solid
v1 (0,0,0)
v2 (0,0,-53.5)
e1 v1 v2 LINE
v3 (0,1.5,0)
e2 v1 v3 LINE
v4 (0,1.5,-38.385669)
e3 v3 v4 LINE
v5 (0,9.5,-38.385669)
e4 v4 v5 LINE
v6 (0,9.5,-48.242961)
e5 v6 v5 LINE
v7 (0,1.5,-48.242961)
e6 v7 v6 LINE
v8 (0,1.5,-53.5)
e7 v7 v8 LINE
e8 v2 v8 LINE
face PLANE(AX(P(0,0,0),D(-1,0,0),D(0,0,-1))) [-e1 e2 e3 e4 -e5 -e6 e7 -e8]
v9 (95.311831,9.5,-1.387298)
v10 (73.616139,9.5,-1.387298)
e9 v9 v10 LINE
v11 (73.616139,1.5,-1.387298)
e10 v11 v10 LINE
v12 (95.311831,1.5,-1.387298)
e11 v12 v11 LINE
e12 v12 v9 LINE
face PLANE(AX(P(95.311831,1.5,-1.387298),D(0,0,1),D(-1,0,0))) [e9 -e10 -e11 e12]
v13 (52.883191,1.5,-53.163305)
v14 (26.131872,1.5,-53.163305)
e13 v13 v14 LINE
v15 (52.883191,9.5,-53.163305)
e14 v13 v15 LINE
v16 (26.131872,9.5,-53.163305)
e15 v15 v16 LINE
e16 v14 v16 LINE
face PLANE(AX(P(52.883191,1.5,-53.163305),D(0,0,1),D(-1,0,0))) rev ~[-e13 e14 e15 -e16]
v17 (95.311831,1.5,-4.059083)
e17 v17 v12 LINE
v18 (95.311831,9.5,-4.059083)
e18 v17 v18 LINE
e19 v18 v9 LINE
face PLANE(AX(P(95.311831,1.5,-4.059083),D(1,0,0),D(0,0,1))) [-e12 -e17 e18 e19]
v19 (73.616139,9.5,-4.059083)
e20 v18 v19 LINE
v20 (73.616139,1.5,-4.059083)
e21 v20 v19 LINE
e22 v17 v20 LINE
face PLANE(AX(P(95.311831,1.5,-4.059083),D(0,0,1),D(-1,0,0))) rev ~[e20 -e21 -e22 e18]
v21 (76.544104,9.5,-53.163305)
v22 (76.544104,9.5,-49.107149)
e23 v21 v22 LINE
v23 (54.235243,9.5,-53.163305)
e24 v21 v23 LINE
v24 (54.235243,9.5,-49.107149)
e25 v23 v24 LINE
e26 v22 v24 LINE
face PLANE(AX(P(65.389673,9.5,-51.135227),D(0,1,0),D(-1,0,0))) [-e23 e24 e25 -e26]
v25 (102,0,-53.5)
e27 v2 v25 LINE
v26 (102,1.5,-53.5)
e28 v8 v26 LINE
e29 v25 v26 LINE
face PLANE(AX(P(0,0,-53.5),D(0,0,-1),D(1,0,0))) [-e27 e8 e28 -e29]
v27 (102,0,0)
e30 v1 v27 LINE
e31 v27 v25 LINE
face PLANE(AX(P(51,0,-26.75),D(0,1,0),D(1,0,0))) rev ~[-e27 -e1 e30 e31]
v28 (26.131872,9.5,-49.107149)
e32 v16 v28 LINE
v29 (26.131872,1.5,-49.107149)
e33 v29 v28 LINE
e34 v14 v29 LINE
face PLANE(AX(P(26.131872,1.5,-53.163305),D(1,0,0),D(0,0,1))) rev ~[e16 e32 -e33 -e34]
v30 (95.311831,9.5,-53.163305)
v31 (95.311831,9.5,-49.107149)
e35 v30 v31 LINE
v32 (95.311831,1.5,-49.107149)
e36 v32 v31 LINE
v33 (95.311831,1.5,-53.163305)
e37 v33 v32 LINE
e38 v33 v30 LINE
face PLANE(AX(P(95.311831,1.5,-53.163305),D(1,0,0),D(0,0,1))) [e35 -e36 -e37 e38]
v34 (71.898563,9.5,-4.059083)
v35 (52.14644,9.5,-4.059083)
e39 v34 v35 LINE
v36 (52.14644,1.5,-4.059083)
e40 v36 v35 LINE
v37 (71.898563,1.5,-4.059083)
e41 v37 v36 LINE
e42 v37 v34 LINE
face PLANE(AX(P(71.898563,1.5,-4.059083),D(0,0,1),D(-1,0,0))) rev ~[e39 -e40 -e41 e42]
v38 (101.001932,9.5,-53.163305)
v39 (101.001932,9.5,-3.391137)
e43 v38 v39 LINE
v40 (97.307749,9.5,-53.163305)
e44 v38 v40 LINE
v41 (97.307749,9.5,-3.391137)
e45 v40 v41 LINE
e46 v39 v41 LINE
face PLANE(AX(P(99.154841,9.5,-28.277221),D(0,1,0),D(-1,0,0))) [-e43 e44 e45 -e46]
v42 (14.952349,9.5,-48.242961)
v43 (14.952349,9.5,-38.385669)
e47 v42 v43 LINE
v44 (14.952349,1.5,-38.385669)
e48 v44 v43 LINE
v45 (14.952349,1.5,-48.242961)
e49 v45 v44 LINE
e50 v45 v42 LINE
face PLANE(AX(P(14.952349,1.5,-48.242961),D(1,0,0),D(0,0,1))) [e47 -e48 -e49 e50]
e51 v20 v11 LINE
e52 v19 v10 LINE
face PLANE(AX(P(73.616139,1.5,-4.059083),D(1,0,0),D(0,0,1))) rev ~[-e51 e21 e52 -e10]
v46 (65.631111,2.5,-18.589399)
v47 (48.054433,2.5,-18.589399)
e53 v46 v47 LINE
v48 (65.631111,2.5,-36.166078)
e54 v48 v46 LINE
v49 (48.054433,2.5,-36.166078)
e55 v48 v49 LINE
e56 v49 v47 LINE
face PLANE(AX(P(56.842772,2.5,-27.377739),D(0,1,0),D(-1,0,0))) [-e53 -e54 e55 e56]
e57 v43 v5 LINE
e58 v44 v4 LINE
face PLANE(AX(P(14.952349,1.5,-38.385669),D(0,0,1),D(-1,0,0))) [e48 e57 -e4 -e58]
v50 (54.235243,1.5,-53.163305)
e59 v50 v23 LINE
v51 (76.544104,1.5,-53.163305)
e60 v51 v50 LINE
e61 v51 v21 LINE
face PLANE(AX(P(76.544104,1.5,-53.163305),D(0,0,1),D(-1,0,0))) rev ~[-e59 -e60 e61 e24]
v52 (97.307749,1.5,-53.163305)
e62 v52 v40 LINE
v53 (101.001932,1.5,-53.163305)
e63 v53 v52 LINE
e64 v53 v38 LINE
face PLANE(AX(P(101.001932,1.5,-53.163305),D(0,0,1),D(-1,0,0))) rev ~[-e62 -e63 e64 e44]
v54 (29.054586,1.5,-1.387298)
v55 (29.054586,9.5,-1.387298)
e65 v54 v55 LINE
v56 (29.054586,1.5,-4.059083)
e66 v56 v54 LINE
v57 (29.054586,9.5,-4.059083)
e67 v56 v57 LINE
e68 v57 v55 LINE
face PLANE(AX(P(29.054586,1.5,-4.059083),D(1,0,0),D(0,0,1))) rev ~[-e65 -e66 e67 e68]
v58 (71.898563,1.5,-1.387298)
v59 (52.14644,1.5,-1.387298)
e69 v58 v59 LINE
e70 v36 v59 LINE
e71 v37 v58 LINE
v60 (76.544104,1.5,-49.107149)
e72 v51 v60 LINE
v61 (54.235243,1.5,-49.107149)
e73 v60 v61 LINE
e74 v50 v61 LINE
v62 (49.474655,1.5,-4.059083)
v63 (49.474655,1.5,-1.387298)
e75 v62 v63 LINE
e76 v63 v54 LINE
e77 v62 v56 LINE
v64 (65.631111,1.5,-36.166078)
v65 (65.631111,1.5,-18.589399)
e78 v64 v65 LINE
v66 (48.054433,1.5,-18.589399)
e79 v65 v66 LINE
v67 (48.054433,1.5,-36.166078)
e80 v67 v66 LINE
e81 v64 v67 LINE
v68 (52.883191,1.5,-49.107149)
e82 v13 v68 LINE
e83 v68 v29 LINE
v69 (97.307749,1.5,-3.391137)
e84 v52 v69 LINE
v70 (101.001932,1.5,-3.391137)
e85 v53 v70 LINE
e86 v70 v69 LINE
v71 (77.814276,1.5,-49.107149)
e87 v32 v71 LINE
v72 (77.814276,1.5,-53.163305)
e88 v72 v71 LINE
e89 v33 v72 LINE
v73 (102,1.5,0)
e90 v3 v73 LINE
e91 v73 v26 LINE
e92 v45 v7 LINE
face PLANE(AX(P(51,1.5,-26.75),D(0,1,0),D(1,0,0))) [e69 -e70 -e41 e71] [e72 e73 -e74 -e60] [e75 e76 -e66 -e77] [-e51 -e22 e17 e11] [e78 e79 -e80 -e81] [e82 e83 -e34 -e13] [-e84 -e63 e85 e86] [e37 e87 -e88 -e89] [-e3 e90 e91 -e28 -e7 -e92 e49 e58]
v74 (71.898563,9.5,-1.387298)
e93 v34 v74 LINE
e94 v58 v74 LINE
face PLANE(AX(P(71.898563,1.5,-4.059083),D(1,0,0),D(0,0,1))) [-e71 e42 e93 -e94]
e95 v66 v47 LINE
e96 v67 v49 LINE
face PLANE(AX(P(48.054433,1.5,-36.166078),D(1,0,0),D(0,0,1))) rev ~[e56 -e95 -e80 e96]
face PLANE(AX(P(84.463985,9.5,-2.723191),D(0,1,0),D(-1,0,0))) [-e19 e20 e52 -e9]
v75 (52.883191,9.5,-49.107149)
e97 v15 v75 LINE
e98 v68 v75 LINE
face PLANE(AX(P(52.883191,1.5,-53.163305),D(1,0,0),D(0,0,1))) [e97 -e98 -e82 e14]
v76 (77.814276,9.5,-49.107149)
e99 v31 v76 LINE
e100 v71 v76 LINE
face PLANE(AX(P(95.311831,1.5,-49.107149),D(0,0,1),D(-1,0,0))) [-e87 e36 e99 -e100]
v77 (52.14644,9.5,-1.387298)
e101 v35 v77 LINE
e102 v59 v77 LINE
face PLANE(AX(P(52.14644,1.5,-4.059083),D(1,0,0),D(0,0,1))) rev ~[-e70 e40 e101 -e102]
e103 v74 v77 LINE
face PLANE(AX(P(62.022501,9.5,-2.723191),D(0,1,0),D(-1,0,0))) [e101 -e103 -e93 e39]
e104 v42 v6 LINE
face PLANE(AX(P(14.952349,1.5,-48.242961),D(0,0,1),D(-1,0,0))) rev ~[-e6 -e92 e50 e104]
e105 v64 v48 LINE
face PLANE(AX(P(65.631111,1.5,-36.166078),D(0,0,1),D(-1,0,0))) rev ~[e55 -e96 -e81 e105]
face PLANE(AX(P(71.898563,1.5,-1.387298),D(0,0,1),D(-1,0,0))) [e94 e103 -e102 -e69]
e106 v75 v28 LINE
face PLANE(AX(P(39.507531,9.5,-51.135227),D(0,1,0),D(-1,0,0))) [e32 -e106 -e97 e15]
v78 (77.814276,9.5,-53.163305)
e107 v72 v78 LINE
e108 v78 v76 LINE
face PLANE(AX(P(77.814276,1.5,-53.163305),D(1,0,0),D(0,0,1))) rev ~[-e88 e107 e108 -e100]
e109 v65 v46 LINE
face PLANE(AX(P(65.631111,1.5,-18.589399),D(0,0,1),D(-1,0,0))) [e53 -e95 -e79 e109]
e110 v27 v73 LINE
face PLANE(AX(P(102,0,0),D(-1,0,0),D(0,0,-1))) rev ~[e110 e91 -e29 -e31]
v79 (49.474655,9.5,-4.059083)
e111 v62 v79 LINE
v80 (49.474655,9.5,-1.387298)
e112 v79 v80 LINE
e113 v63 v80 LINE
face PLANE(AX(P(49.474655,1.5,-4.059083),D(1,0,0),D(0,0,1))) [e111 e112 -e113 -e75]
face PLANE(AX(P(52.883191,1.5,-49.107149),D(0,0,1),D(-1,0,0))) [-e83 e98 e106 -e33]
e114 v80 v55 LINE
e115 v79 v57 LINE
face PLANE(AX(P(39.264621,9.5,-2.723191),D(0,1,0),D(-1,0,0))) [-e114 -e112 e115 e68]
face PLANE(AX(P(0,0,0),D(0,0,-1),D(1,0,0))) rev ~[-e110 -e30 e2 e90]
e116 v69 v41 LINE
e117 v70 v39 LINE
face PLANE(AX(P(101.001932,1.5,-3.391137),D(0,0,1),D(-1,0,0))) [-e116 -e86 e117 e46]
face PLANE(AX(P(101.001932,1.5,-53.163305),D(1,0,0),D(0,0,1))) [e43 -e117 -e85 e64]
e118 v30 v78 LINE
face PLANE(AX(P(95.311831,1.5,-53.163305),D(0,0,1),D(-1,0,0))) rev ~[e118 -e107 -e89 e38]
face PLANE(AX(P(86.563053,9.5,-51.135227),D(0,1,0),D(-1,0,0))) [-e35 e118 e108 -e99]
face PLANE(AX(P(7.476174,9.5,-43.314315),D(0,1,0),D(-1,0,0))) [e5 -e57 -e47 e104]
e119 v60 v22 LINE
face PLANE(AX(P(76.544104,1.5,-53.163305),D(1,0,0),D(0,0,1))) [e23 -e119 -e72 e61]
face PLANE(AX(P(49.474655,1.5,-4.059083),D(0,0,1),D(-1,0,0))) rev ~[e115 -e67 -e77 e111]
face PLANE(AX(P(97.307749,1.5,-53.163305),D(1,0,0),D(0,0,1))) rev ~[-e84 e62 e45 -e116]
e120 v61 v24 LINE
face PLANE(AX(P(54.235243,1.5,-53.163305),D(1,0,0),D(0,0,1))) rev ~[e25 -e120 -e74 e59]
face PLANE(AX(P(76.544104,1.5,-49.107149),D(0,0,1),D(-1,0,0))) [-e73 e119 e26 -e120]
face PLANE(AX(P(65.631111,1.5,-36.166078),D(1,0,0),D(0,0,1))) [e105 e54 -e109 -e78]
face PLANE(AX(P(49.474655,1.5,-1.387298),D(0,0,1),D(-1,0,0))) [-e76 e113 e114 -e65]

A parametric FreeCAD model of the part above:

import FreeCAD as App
import Part
import Sketcher
Q = App.Units.Quantity

doc = App.newDocument("Part")
params = doc.addObject("Spreadsheet::Sheet", "Params")
for row, (alias, value) in enumerate([
    ("sketch1_width", "102 mm"),
    ("sketch1_height", "53.5 mm"),
    ("pad1_length", "1.5 mm"),
    ("pad2_length", "8 mm"),
    ("pad3_length", "8 mm"),
    ("pad4_length", "1 mm"),
], start=1):
    params.set(f"A{row}", alias)
    params.set(f"B{row}", "=" + value)
    params.setAlias(f"B{row}", alias)

body = doc.addObject("PartDesign::Body", "Body")

# Sketch on XZ plane
sketch1 = body.newObject("Sketcher::SketchObject", "Sketch")
sketch1.AttachmentSupport = (doc.getObject("XZ_Plane"), [""])
sketch1.MapMode = "FlatFace"
sketch1.addGeometry([
    Part.LineSegment(App.Vector(0, -54, 0), App.Vector(0, 0, 0)),
    Part.LineSegment(App.Vector(0, 0, 0), App.Vector(102, 0, 0)),
    Part.LineSegment(App.Vector(102, 0, 0), App.Vector(102, -54, 0)),
    Part.LineSegment(App.Vector(102, -54, 0), App.Vector(0, -54, 0)),
], False)
sketch1.addConstraint([
    Sketcher.Constraint("Coincident", 0, 2, 1, 1),
    Sketcher.Constraint("Coincident", 1, 2, 2, 1),
    Sketcher.Constraint("Coincident", 2, 2, 3, 1),
    Sketcher.Constraint("Coincident", 3, 2, 0, 1),
    Sketcher.Constraint("Vertical", 0),
    Sketcher.Constraint("Horizontal", 1),
    Sketcher.Constraint("Vertical", 2),
    Sketcher.Constraint("Horizontal", 3),
    Sketcher.Constraint("Coincident", 0, 2, -1, 1),
    Sketcher.Constraint("DistanceX", 1, 1, 1, 2, Q("102 mm")),
    Sketcher.Constraint("DistanceY", 0, 1, 0, 2, Q("53.5 mm")),
])
sketch1.setExpression("Constraints[9]", "Params.sketch1_width")
sketch1.setExpression("Constraints[10]", "Params.sketch1_height")
pad1 = body.newObject("PartDesign::Pad", "Pad")
pad1.Profile = sketch1
pad1.setExpression("Length", "Params.pad1_length")
pad1.Reversed = True

# Sketch on XZ plane
sketch2 = body.newObject("Sketcher::SketchObject", "Sketch001")
sketch2.AttachmentSupport = (doc.getObject("XZ_Plane"), [""])
sketch2.MapMode = "FlatFace"
sketch2.AttachmentOffset = App.Placement(App.Vector(0, 0, -1.5), App.Rotation())
sketch2.addGeometry([
    Part.LineSegment(App.Vector(15, -38, 0), App.Vector(15, -48, 0)),
    Part.LineSegment(App.Vector(15, -48, 0), App.Vector(0, -48, 0)),
    Part.LineSegment(App.Vector(0, -48, 0), App.Vector(0, -38, 0)),
    Part.LineSegment(App.Vector(0, -38, 0), App.Vector(15, -38, 0)),
], False)
sketch2.addConstraint([
    Sketcher.Constraint("Coincident", 0, 2, 1, 1),
    Sketcher.Constraint("Coincident", 1, 2, 2, 1),
    Sketcher.Constraint("Coincident", 2, 2, 3, 1),
    Sketcher.Constraint("Coincident", 3, 2, 0, 1),
    Sketcher.Constraint("Vertical", 0),
    Sketcher.Constraint("Horizontal", 1),
    Sketcher.Constraint("Vertical", 2),
    Sketcher.Constraint("Horizontal", 3),
    Sketcher.Constraint("PointOnObject", 1, 2, -2),
    Sketcher.Constraint("DistanceX", 1, 2, 1, 1, Q("14.952349 mm")),
    Sketcher.Constraint("DistanceY", 0, 2, 0, 1, Q("9.857292 mm")),
    Sketcher.Constraint("DistanceY", 0, 2, -1, 1, Q("48.242961 mm")),
])
pad2 = body.newObject("PartDesign::Pad", "Pad001")
pad2.Profile = sketch2
pad2.setExpression("Length", "Params.pad2_length")
pad2.Reversed = True

# Sketch on XZ plane
sketch3 = body.newObject("Sketcher::SketchObject", "Sketch002")
sketch3.AttachmentSupport = (doc.getObject("XZ_Plane"), [""])
sketch3.MapMode = "FlatFace"
sketch3.AttachmentOffset = App.Placement(App.Vector(0, 0, -1.5), App.Rotation())
sketch3.addGeometry([
    Part.LineSegment(App.Vector(52.9, -49.1, 0), App.Vector(52.9, -53.2, 0)),  # 0
    Part.LineSegment(App.Vector(52.9, -53.2, 0), App.Vector(26.1, -53.2, 0)),  # 1
    Part.LineSegment(App.Vector(26.1, -53.2, 0), App.Vector(26.1, -49.1, 0)),  # 2
    Part.LineSegment(App.Vector(26.1, -49.1, 0), App.Vector(52.9, -49.1, 0)),  # 3
    Part.LineSegment(App.Vector(76.5, -49.1, 0), App.Vector(76.5, -53.2, 0)),  # 4
    Part.LineSegment(App.Vector(76.5, -53.2, 0), App.Vector(54.2, -53.2, 0)),  # 5
    Part.LineSegment(App.Vector(54.2, -53.2, 0), App.Vector(54.2, -49.1, 0)),  # 6
    Part.LineSegment(App.Vector(54.2, -49.1, 0), App.Vector(76.5, -49.1, 0)),  # 7
    Part.LineSegment(App.Vector(95.3, -49.1, 0), App.Vector(95.3, -53.2, 0)),  # 8
    Part.LineSegment(App.Vector(95.3, -53.2, 0), App.Vector(77.8, -53.2, 0)),  # 9
    Part.LineSegment(App.Vector(77.8, -53.2, 0), App.Vector(77.8, -49.1, 0)),  # 10
    Part.LineSegment(App.Vector(77.8, -49.1, 0), App.Vector(95.3, -49.1, 0)),  # 11
    Part.LineSegment(App.Vector(101, -3.4, 0), App.Vector(101, -53.2, 0)),  # 12
    Part.LineSegment(App.Vector(101, -53.2, 0), App.Vector(97.3, -53.2, 0)),  # 13
    Part.LineSegment(App.Vector(97.3, -53.2, 0), App.Vector(97.3, -3.4, 0)),  # 14
    Part.LineSegment(App.Vector(97.3, -3.4, 0), App.Vector(101, -3.4, 0)),  # 15
    Part.LineSegment(App.Vector(95.3, -1.4, 0), App.Vector(95.3, -4.1, 0)),  # 16
    Part.LineSegment(App.Vector(95.3, -4.1, 0), App.Vector(73.6, -4.1, 0)),  # 17
    Part.LineSegment(App.Vector(73.6, -4.1, 0), App.Vector(73.6, -1.4, 0)),  # 18
    Part.LineSegment(App.Vector(73.6, -1.4, 0), App.Vector(95.3, -1.4, 0)),  # 19
    Part.LineSegment(App.Vector(71.9, -1.4, 0), App.Vector(71.9, -4.1, 0)),  # 20
    Part.LineSegment(App.Vector(71.9, -4.1, 0), App.Vector(52.1, -4.1, 0)),  # 21
    Part.LineSegment(App.Vector(52.1, -4.1, 0), App.Vector(52.1, -1.4, 0)),  # 22
    Part.LineSegment(App.Vector(52.1, -1.4, 0), App.Vector(71.9, -1.4, 0)),  # 23
    Part.LineSegment(App.Vector(49.5, -1.4, 0), App.Vector(49.5, -4.1, 0)),  # 24
    Part.LineSegment(App.Vector(49.5, -4.1, 0), App.Vector(29.1, -4.1, 0)),  # 25
    Part.LineSegment(App.Vector(29.1, -4.1, 0), App.Vector(29.1, -1.4, 0)),  # 26
    Part.LineSegment(App.Vector(29.1, -1.4, 0), App.Vector(49.5, -1.4, 0)),  # 27
], False)
sketch3.addConstraint([
    Sketcher.Constraint("Coincident", 0, 2, 1, 1),
    Sketcher.Constraint("Coincident", 1, 2, 2, 1),
    Sketcher.Constraint("Coincident", 2, 2, 3, 1),
    Sketcher.Constraint("Coincident", 3, 2, 0, 1),
    Sketcher.Constraint("Coincident", 4, 2, 5, 1),
    Sketcher.Constraint("Coincident", 5, 2, 6, 1),
    Sketcher.Constraint("Coincident", 6, 2, 7, 1),
    Sketcher.Constraint("Coincident", 7, 2, 4, 1),
    Sketcher.Constraint("Coincident", 8, 2, 9, 1),
    Sketcher.Constraint("Coincident", 9, 2, 10, 1),
    Sketcher.Constraint("Coincident", 10, 2, 11, 1),
    Sketcher.Constraint("Coincident", 11, 2, 8, 1),
    Sketcher.Constraint("Coincident", 12, 2, 13, 1),
    Sketcher.Constraint("Coincident", 13, 2, 14, 1),
    Sketcher.Constraint("Coincident", 14, 2, 15, 1),
    Sketcher.Constraint("Coincident", 15, 2, 12, 1),
    Sketcher.Constraint("Coincident", 16, 2, 17, 1),
    Sketcher.Constraint("Coincident", 17, 2, 18, 1),
    Sketcher.Constraint("Coincident", 18, 2, 19, 1),
    Sketcher.Constraint("Coincident", 19, 2, 16, 1),
    Sketcher.Constraint("Coincident", 20, 2, 21, 1),
    Sketcher.Constraint("Coincident", 21, 2, 22, 1),
    Sketcher.Constraint("Coincident", 22, 2, 23, 1),
    Sketcher.Constraint("Coincident", 23, 2, 20, 1),
    Sketcher.Constraint("Coincident", 24, 2, 25, 1),
    Sketcher.Constraint("Coincident", 25, 2, 26, 1),
    Sketcher.Constraint("Coincident", 26, 2, 27, 1),
    Sketcher.Constraint("Coincident", 27, 2, 24, 1),
    Sketcher.Constraint("Vertical", 0),
    Sketcher.Constraint("Horizontal", 1),
    Sketcher.Constraint("Vertical", 2),
    Sketcher.Constraint("Horizontal", 3),
    Sketcher.Constraint("Vertical", 4),
    Sketcher.Constraint("Horizontal", 5),
    Sketcher.Constraint("Vertical", 6),
    Sketcher.Constraint("Horizontal", 7),
    Sketcher.Constraint("Vertical", 8),
    Sketcher.Constraint("Horizontal", 9),
    Sketcher.Constraint("Vertical", 10),
    Sketcher.Constraint("Horizontal", 11),
    Sketcher.Constraint("Vertical", 12),
    Sketcher.Constraint("Horizontal", 13),
    Sketcher.Constraint("Vertical", 14),
    Sketcher.Constraint("Horizontal", 15),
    Sketcher.Constraint("Vertical", 16),
    Sketcher.Constraint("Horizontal", 17),
    Sketcher.Constraint("Vertical", 18),
    Sketcher.Constraint("Horizontal", 19),
    Sketcher.Constraint("Vertical", 20),
    Sketcher.Constraint("Horizontal", 21),
    Sketcher.Constraint("Vertical", 22),
    Sketcher.Constraint("Horizontal", 23),
    Sketcher.Constraint("Vertical", 24),
    Sketcher.Constraint("Horizontal", 25),
    Sketcher.Constraint("Vertical", 26),
    Sketcher.Constraint("Horizontal", 27),
    Sketcher.Constraint("Horizontal", 1, 2, 4, 2),
    Sketcher.Constraint("Horizontal", 3, 2, 6, 2),
    Sketcher.Constraint("Horizontal", 5, 2, 8, 2),
    Sketcher.Constraint("Horizontal", 7, 2, 10, 2),
    Sketcher.Constraint("Horizontal", 9, 2, 12, 2),
    Sketcher.Constraint("Horizontal", 17, 2, 20, 2),
    Sketcher.Constraint("Horizontal", 19, 2, 22, 2),
    Sketcher.Constraint("Horizontal", 21, 2, 24, 2),
    Sketcher.Constraint("Horizontal", 23, 2, 26, 2),
    Sketcher.Constraint("Vertical", 11, 2, 16, 2),
    Sketcher.Constraint("DistanceX", 1, 2, 1, 1, Q("26.751318 mm")),
    Sketcher.Constraint("DistanceX", 5, 2, 5, 1, Q("22.308861 mm")),
    Sketcher.Constraint("DistanceX", 17, 2, 17, 1, Q("21.695692 mm")),
    Sketcher.Constraint("DistanceX", 25, 2, 25, 1, Q("20.420069 mm")),
    Sketcher.Constraint("DistanceY", 12, 2, 12, 1, Q("49.772168 mm")),
    Sketcher.Constraint("DistanceY", 18, 2, -1, 1, Q("1.387298 mm")),
    Sketcher.Constraint("DistanceX", 8, 2, 12, 2, Q("5.690102 mm")),
    Sketcher.Constraint("DistanceX", 21, 2, 17, 2, Q("21.469699 mm")),
    Sketcher.Constraint("DistanceX", 9, 2, 9, 1, Q("17.497554 mm")),
    Sketcher.Constraint("DistanceX", 13, 2, 13, 1, Q("3.694183 mm")),
    Sketcher.Constraint("DistanceX", 21, 2, 21, 1, Q("19.752123 mm")),
    Sketcher.Constraint("DistanceY", 0, 2, 0, 1, Q("4.056157 mm")),
    Sketcher.Constraint("DistanceY", 16, 2, 16, 1, Q("2.671785 mm")),
    Sketcher.Constraint("DistanceX", -1, 1, 0, 2, Q("52.883191 mm")),
    Sketcher.Constraint("DistanceY", 2, 2, -1, 1, Q("49.107149 mm")),
    Sketcher.Constraint("DistanceX", -1, 1, 8, 2, Q("95.311831 mm")),
    Sketcher.Constraint("DistanceX", 1, 2, 4, 2, Q("50.412231 mm")),
    Sketcher.Constraint("DistanceX", -1, 1, 24, 2, Q("49.474655 mm")),
])
pad3 = body.newObject("PartDesign::Pad", "Pad002")
pad3.Profile = sketch3
pad3.setExpression("Length", "Params.pad3_length")
pad3.Reversed = True

# Sketch on XZ plane
sketch4 = body.newObject("Sketcher::SketchObject", "Sketch003")
sketch4.AttachmentSupport = (doc.getObject("XZ_Plane"), [""])
sketch4.MapMode = "FlatFace"
sketch4.AttachmentOffset = App.Placement(App.Vector(0, 0, -1.5), App.Rotation())
sketch4.addGeometry([
    Part.LineSegment(App.Vector(66, -19, 0), App.Vector(66, -36, 0)),
    Part.LineSegment(App.Vector(66, -36, 0), App.Vector(48, -36, 0)),
    Part.LineSegment(App.Vector(48, -36, 0), App.Vector(48, -19, 0)),
    Part.LineSegment(App.Vector(48, -19, 0), App.Vector(66, -19, 0)),
], False)
sketch4.addConstraint([
    Sketcher.Constraint("Coincident", 0, 2, 1, 1),
    Sketcher.Constraint("Coincident", 1, 2, 2, 1),
    Sketcher.Constraint("Coincident", 2, 2, 3, 1),
    Sketcher.Constraint("Coincident", 3, 2, 0, 1),
    Sketcher.Constraint("Vertical", 0),
    Sketcher.Constraint("Horizontal", 1),
    Sketcher.Constraint("Vertical", 2),
    Sketcher.Constraint("Horizontal", 3),
    Sketcher.Constraint("Equal", 3, 0),
    Sketcher.Constraint("DistanceX", 1, 2, 1, 1, Q("17.576678 mm")),
    Sketcher.Constraint("DistanceY", 2, 2, -1, 1, Q("18.589399 mm")),
    Sketcher.Constraint("DistanceX", -1, 1, 0, 2, Q("65.631111 mm")),
])
pad4 = body.newObject("PartDesign::Pad", "Pad003")
pad4.Profile = sketch4
pad4.setExpression("Length", "Params.pad4_length")
pad4.Reversed = True

doc.recompute()
